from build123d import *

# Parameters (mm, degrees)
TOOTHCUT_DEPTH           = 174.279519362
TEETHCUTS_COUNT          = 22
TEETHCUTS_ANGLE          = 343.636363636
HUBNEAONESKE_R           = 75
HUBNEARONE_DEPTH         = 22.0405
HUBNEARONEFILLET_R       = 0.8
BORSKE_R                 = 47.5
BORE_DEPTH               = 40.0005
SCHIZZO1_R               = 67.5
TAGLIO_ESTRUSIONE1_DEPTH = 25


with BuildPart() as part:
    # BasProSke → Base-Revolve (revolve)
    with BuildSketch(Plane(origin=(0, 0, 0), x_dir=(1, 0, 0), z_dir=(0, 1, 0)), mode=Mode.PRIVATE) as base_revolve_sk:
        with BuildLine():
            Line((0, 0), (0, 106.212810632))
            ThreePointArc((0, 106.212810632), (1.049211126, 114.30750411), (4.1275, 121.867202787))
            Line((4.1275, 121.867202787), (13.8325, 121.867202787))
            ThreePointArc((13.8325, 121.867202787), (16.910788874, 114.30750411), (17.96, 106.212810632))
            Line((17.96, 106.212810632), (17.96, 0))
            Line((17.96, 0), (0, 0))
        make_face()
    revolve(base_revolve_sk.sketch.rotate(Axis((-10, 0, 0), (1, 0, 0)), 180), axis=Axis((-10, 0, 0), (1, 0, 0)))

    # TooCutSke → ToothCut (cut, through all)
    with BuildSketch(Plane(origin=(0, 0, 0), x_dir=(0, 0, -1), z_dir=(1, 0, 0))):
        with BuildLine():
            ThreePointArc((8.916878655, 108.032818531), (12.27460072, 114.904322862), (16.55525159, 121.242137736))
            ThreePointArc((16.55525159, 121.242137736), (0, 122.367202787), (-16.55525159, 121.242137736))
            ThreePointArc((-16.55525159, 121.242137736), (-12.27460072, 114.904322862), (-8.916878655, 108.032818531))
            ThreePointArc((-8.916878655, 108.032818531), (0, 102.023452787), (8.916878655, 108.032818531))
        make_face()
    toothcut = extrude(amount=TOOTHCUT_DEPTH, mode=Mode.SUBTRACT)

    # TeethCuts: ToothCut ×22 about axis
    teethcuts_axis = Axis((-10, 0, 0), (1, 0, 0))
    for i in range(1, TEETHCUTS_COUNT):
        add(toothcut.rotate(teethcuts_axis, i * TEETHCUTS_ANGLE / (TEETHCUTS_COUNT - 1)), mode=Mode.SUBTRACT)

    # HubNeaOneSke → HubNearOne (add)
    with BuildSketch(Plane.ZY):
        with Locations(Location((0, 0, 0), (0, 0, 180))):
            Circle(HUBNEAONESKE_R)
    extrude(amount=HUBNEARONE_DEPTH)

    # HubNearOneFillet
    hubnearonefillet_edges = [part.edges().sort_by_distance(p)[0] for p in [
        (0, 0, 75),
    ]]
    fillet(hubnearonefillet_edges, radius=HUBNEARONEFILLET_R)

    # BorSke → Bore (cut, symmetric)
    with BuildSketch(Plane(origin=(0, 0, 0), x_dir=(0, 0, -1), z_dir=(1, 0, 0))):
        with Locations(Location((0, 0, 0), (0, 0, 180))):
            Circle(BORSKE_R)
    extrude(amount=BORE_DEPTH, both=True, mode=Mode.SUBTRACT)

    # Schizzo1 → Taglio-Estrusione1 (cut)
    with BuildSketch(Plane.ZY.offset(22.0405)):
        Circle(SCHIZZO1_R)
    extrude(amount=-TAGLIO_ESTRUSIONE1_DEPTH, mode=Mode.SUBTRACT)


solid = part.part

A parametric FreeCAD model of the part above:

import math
import FreeCAD as App
import Part
import Sketcher

V = App.Vector


def edges_at(feature, points):
    """Names of the edges that pass closest to the given points."""
    edges = feature.Shape.Edges
    near = lambda p: min(range(len(edges)), key=lambda i: edges[i].distToShape(Part.Vertex(*p))[0])
    return sorted({f"Edge{near(p) + 1}" for p in points})

doc = App.newDocument("Part")
body = doc.addObject("PartDesign::Body", "Body")

# Sketch on XZ plane
sketch1 = doc.addObject("Sketcher::SketchObject", "Sketch")
body.addObject(sketch1)
sketch1.AttachmentSupport = (doc.XZ_Plane, [""])
sketch1.MapMode = "FlatFace"
sketch1.addGeometry([
    Part.LineSegment(V(0, -106, 0), V(0, 0, 0)),  # 0
    Part.LineSegment(V(0, 0, 0), V(18, 0, 0)),  # 1
    Part.LineSegment(V(18, 0, 0), V(18, -106, 0)),  # 2
    Part.ArcOfCircle(Part.Circle(V(-14, -106, 0), V(0, 0, 1), 32), math.radians(-30), math.radians(0)),  # 3
    Part.LineSegment(V(14, -122, 0), V(4, -122, 0)),  # 4
    Part.ArcOfCircle(Part.Circle(V(32, -106, 0), V(0, 0, 1), 32), math.radians(-180), math.radians(-150)),  # 5
], False)
sketch1.addConstraint([
    Sketcher.Constraint("Coincident", 0, 2, 1, 1),
    Sketcher.Constraint("Coincident", 1, 2, 2, 1),
    Sketcher.Constraint("Tangent", 2, 2, 3, 2),
    Sketcher.Constraint("Coincident", 3, 1, 4, 1),
    Sketcher.Constraint("Coincident", 4, 2, 5, 2),
    Sketcher.Constraint("Tangent", 5, 1, 0, 1),
    Sketcher.Constraint("Vertical", 0),
    Sketcher.Constraint("Horizontal", 1),
    Sketcher.Constraint("Vertical", 2),
    Sketcher.Constraint("Horizontal", 4),
    Sketcher.Constraint("Coincident", 0, 2, -1, 1),
    Sketcher.Constraint("Equal", 3, 5),
    Sketcher.Constraint("Horizontal", 3, 3, 5, 3),
    Sketcher.Constraint("Radius", 3, 31.75),
    Sketcher.Constraint("DistanceX", 1, 1, 1, 2, 17.96),
    Sketcher.Constraint("DistanceX", 4, 2, 4, 1, 9.705),
    Sketcher.Constraint("DistanceY", 0, 1, 0, 2, 106.212811),
])
revolution = doc.addObject("PartDesign::Revolution", "Revolution")
body.addObject(revolution)
revolution.Profile = sketch1
revolution.ReferenceAxis = (sketch1, ["H_Axis"])
revolution.Angle = 360

# Sketch on YZ plane
sketch2 = doc.addObject("Sketcher::SketchObject", "Sketch001")
body.addObject(sketch2)
sketch2.AttachmentSupport = (doc.YZ_Plane, [""])
sketch2.MapMode = "FlatFace"
sketch2.addGeometry([
    Part.ArcOfCircle(Part.Circle(V(87, -60, 0), V(0, 0, 1), 55), math.radians(51.97), math.radians(67.95)),
    Part.ArcOfCircle(Part.Circle(V(0, 0, 0), V(0, 0, 1), 122), math.radians(-7.78), math.radians(7.78)),
    Part.ArcOfCircle(Part.Circle(V(87, 60, 0), V(0, 0, 1), 55), math.radians(-67.95), math.radians(-51.97)),
    Part.ArcOfCircle(Part.Circle(V(112, 0, 0), V(0, 0, 1), 10), math.radians(112), math.radians(248)),
], False)
sketch2.addConstraint([
    Sketcher.Constraint("Coincident", 0, 1, 1, 1),
    Sketcher.Constraint("Coincident", 1, 2, 2, 2),
    Sketcher.Constraint("Tangent", 2, 1, 3, 1),
    Sketcher.Constraint("Tangent", 3, 2, 0, 2),
    Sketcher.Constraint("Coincident", 1, 3, -1, 1),
    Sketcher.Constraint("Equal", 0, 2),
    Sketcher.Constraint("Symmetric", 0, 3, 2, 3, -1),
    Sketcher.Constraint("Radius", 0, 54.864),
    Sketcher.Constraint("Radius", 3, 9.62025),
    Sketcher.Constraint("Radius", 1, 122.367203),
    Sketcher.Constraint("DistanceY", 0, 1, -1, 1, 16.555252),
    Sketcher.Constraint("DistanceX", -1, 1, 2, 1, 108.032819),
])
pocket1 = doc.addObject("PartDesign::Pocket", "Pocket")
body.addObject(pocket1)
pocket1.Profile = sketch2
pocket1.Type = "ThroughAll"
pocket1.Reversed = True
doc.recompute()

polarpattern = doc.addObject("PartDesign::PolarPattern", "PolarPattern")
body.addObject(polarpattern)
polarpattern.Originals = [pocket1]
polarpattern.Axis = (doc.X_Axis, [""])
polarpattern.Angle = 360
polarpattern.Occurrences = 22
body.Tip = polarpattern

# Sketch on YZ plane
sketch3 = doc.addObject("Sketcher::SketchObject", "Sketch002")
body.addObject(sketch3)
sketch3.AttachmentSupport = (doc.YZ_Plane, [""])
sketch3.MapMode = "FlatFace"
sketch3.addGeometry(Part.Circle(V(0, 0, 0), V(0, 0, 1), 75), False)
sketch3.addConstraint([
    Sketcher.Constraint("Coincident", 0, 3, -1, 1),
    Sketcher.Constraint("Diameter", 0, 150.0),
])
pad1 = doc.addObject("PartDesign::Pad", "Pad")
body.addObject(pad1)
pad1.Profile = sketch3
pad1.Length = 22.0405
pad1.Reversed = True
doc.recompute()

fillet = doc.addObject("PartDesign::Fillet", "Fillet")
body.addObject(fillet)
fillet.Base = (pad1, edges_at(pad1, [(0, 0, 75)]))
fillet.Radius = 0.8

# Sketch on YZ plane
sketch4 = doc.addObject("Sketcher::SketchObject", "Sketch003")
body.addObject(sketch4)
sketch4.AttachmentSupport = (doc.YZ_Plane, [""])
sketch4.MapMode = "FlatFace"
sketch4.addGeometry(Part.Circle(V(0, 0, 0), V(0, 0, 1), 48), False)
sketch4.addConstraint([
    Sketcher.Constraint("Coincident", 0, 3, -1, 1),
    Sketcher.Constraint("Diameter", 0, 95.0),
])
pocket2 = doc.addObject("PartDesign::Pocket", "Pocket001")
body.addObject(pocket2)
pocket2.Profile = sketch4
pocket2.Length = 80.001
pocket2.Midplane = True

# Sketch on YZ plane
sketch5 = doc.addObject("Sketcher::SketchObject", "Sketch004")
body.addObject(sketch5)
sketch5.AttachmentSupport = (doc.YZ_Plane, [""])
sketch5.MapMode = "FlatFace"
sketch5.AttachmentOffset = App.Placement(V(0, 0, -22.0405), App.Rotation())
sketch5.addGeometry(Part.Circle(V(0, 0, 0), V(0, 0, 1), 68), False)
sketch5.addConstraint([
    Sketcher.Constraint("Coincident", 0, 3, -1, 1),
    Sketcher.Constraint("Diameter", 0, 135.0),
])
pocket3 = doc.addObject("PartDesign::Pocket", "Pocket002")
body.addObject(pocket3)
pocket3.Profile = sketch5
pocket3.Length = 25
pocket3.Reversed = True

doc.recompute()
